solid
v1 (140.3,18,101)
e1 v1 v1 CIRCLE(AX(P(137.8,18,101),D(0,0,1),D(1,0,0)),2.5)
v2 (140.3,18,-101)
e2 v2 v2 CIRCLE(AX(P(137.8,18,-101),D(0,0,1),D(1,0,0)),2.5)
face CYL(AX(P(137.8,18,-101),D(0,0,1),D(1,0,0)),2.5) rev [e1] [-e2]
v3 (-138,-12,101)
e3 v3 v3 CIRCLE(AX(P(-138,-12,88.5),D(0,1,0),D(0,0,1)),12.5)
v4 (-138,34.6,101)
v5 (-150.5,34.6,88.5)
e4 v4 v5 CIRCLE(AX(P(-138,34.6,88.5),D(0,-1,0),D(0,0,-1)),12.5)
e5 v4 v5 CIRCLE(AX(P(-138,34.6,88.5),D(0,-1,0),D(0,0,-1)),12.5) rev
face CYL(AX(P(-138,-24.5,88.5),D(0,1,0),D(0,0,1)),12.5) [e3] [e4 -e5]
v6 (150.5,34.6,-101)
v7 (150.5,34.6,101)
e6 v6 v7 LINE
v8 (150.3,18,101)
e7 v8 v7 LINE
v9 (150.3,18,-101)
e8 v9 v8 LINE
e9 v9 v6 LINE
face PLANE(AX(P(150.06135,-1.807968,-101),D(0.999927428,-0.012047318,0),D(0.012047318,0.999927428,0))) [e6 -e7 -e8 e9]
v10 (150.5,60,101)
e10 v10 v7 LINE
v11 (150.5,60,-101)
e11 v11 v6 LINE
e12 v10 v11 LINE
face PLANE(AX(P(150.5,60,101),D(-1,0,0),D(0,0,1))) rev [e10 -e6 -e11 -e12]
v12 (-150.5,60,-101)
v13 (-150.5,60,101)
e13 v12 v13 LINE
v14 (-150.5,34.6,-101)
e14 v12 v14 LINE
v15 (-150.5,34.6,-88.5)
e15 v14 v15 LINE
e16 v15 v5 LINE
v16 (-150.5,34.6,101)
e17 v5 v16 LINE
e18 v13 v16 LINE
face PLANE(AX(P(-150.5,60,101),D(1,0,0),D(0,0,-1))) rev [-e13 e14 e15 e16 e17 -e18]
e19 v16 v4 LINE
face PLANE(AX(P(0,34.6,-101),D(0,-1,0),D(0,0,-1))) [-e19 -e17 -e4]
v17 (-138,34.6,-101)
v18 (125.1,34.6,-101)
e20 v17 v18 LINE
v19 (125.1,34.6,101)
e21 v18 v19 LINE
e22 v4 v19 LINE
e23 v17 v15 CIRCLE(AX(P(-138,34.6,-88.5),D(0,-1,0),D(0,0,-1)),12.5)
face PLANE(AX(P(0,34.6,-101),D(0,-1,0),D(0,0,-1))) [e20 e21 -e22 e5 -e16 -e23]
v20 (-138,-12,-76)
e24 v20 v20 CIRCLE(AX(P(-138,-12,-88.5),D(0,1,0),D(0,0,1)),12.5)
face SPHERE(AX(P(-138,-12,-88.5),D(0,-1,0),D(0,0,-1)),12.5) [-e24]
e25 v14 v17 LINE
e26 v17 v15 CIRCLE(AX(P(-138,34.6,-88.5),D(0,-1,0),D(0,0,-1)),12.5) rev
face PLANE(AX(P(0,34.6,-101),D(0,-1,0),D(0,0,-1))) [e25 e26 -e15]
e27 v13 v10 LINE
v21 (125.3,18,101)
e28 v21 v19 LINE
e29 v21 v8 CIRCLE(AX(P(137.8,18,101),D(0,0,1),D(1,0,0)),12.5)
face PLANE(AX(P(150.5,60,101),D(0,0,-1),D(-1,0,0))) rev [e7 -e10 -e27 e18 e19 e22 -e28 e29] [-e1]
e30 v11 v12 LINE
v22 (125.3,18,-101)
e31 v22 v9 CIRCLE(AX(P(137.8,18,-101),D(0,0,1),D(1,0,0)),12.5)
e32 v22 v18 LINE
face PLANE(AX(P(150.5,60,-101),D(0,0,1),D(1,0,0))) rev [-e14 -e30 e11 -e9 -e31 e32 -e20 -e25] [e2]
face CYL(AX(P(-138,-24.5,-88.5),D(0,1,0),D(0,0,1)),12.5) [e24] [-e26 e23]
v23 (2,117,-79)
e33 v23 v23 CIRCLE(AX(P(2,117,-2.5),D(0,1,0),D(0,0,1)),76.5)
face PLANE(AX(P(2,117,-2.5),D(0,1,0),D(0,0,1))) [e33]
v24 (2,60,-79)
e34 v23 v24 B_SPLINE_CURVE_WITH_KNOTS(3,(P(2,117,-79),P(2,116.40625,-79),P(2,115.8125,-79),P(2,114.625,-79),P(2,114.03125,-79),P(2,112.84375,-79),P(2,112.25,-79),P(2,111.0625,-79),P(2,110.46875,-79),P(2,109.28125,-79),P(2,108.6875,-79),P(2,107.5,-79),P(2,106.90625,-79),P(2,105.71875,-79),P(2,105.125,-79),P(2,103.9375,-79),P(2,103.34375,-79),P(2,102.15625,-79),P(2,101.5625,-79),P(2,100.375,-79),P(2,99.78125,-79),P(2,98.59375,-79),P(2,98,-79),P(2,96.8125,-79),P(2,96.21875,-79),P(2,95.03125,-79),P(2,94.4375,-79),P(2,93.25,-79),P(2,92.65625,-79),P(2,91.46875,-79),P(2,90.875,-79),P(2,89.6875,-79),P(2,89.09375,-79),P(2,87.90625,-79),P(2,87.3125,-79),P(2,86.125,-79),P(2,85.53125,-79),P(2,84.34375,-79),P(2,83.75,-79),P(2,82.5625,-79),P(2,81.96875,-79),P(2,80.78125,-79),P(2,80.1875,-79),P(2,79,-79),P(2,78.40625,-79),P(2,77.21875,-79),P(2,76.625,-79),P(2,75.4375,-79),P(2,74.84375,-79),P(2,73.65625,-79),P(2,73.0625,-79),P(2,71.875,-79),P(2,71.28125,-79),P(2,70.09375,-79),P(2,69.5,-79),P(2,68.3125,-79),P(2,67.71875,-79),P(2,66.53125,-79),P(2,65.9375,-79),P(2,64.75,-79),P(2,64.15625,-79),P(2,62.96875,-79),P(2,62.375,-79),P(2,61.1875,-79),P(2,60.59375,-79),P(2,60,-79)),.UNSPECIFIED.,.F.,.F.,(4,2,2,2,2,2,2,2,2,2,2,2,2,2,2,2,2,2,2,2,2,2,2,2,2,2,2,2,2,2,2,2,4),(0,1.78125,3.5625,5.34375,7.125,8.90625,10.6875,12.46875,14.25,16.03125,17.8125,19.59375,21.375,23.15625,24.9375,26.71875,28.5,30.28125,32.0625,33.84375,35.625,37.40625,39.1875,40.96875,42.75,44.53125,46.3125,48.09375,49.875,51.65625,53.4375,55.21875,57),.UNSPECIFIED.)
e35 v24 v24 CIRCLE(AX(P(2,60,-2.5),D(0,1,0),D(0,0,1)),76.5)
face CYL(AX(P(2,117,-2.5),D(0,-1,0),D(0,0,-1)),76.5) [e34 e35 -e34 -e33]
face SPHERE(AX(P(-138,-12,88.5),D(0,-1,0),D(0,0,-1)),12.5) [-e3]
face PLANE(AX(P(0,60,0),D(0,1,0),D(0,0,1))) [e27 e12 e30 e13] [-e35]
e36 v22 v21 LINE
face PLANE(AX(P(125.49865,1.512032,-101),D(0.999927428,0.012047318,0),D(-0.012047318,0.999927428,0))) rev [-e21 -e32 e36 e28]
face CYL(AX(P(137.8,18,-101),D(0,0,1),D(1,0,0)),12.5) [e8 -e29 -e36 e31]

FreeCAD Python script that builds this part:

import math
import FreeCAD as App
import Part
import Sketcher
from FreeCAD import Vector


def edges_at(feature, points):
    """Names of the edges that pass closest to the given points."""
    edges = feature.Shape.Edges
    near = lambda p: min(range(len(edges)), key=lambda i: edges[i].distToShape(Part.Vertex(*p))[0])
    return sorted({f"Edge{near(p) + 1}" for p in points})


def add_polygon(sketch, points):
    """Adds a closed chain of lines whose ends are joined by coincident constraints."""
    first, n = sketch.GeometryCount, len(points)
    for a, b in zip(points, points[1:] + points[:1]):
        sketch.addGeometry(Part.LineSegment(App.Vector(*a, 0), App.Vector(*b, 0)), False)
    for i in range(n):
        sketch.addConstraint(Sketcher.Constraint("Coincident", first + i, 2, first + (i + 1) % n, 1))

doc = App.newDocument("Part")
params = doc.addObject("Spreadsheet::Sheet", "Params")
for row, (alias, value) in enumerate([
    ("sketch1_width", "301 mm"),
    ("sketch1_height", "202 mm"),
    ("pad1_length", "60 mm"),
    ("sketch2_radius", "12.5 mm"),
    ("sketch2_width", "301 mm"),
    ("sketch2_width2", "275.6 mm"),
    ("sketch2_height", "34.6 mm"),
    ("sketch3_diameter", "25 mm"),
    ("pad2_length", "59.1 mm"),
    ("fillet_radius", "12.5 mm"),
    ("sketch4_diameter", "5 mm"),
    ("sketch5_diameter", "153 mm"),
    ("pad3_length", "57 mm"),
], start=1):
    params.set(f"A{row}", alias)
    params.set(f"B{row}", "=" + value)
    params.setAlias(f"B{row}", alias)

body = doc.addObject("PartDesign::Body", "Body")

sketch1 = doc.addObject("Sketcher::SketchObject", "Sketch")
body.addObject(sketch1)
sketch1.AttachmentSupport = (doc.XZ_Plane, [""])
sketch1.MapMode = "FlatFace"
add_polygon(sketch1, [(-150, -101), (-150, 101), (150, 101), (150, -101)])
sketch1.addConstraint([
    Sketcher.Constraint("Vertical", 0),
    Sketcher.Constraint("Horizontal", 1),
    Sketcher.Constraint("Vertical", 2),
    Sketcher.Constraint("Horizontal", 3),
    Sketcher.Constraint("Symmetric", 0, 2, 2, 2, -1, 1),
    Sketcher.Constraint("DistanceX", 1, 1, 1, 2, 301.0),
    Sketcher.Constraint("DistanceY", 0, 1, 0, 2, 202.0),
])
sketch1.setExpression("Constraints[9]", "Params.sketch1_width")
sketch1.setExpression("Constraints[10]", "Params.sketch1_height")
pad1 = doc.addObject("PartDesign::Pad", "Pad")
body.addObject(pad1)
pad1.Profile = sketch1
pad1.setExpression("Length", "Params.pad1_length")
pad1.Reversed = True

sketch2 = doc.addObject("Sketcher::SketchObject", "Sketch001")
body.addObject(sketch2)
sketch2.AttachmentSupport = (doc.XY_Plane, [""])
sketch2.MapMode = "FlatFace"
sketch2.AttachmentOffset = App.Placement(Vector(0, 0, 101), App.Rotation())
sketch2.addGeometry([
    Part.LineSegment(Vector(125, 18, 0), Vector(125, 35, 0)),
    Part.LineSegment(Vector(125, 35, 0), Vector(-150, 35, 0)),
    Part.LineSegment(Vector(-150, 35, 0), Vector(-150, 0, 0)),
    Part.LineSegment(Vector(-150, 0, 0), Vector(150, 0, 0)),
    Part.LineSegment(Vector(150, 0, 0), Vector(150, 35, 0)),
    Part.LineSegment(Vector(150, 35, 0), Vector(150, 18, 0)),
    Part.ArcOfCircle(Part.Circle(Vector(138, 18, 0), Vector(0, 0, 1), 12), math.radians(180), math.radians(360)),
], False)
sketch2.addConstraint([
    Sketcher.Constraint("Coincident", 0, 2, 1, 1),
    Sketcher.Constraint("Coincident", 1, 2, 2, 1),
    Sketcher.Constraint("Coincident", 2, 2, 3, 1),
    Sketcher.Constraint("Coincident", 3, 2, 4, 1),
    Sketcher.Constraint("Coincident", 4, 2, 5, 1),
    Sketcher.Constraint("Coincident", 5, 2, 6, 2),
    Sketcher.Constraint("Coincident", 6, 1, 0, 1),
    Sketcher.Constraint("Horizontal", 1),
    Sketcher.Constraint("Vertical", 2),
    Sketcher.Constraint("Horizontal", 3),
    Sketcher.Constraint("Vertical", 4),
    Sketcher.Constraint("Symmetric", 2, 2, 3, 2, -1, 1),
    Sketcher.Constraint("Horizontal", 1, 2, 4, 2),
    Sketcher.Constraint("Horizontal", 6, 3, 5, 2),
    Sketcher.Constraint("Horizontal", 5, 2, 6, 1),
    Sketcher.Constraint("Equal", 0, 5),
    Sketcher.Constraint("Radius", 6, 12.5),
    Sketcher.Constraint("DistanceX", 3, 1, 3, 2, 301.0),
    Sketcher.Constraint("DistanceX", 1, 2, 1, 1, 275.6),
    Sketcher.Constraint("DistanceY", 2, 2, 2, 1, 34.6),
    Sketcher.Constraint("DistanceY", -1, 1, 6, 3, 18.0),
])
sketch2.setExpression("Constraints[16]", "Params.sketch2_radius")
sketch2.setExpression("Constraints[17]", "Params.sketch2_width")
sketch2.setExpression("Constraints[18]", "Params.sketch2_width2")
sketch2.setExpression("Constraints[19]", "Params.sketch2_height")
pocket1 = doc.addObject("PartDesign::Pocket", "Pocket")
body.addObject(pocket1)
pocket1.Profile = sketch2
pocket1.Type = "ThroughAll"

sketch3 = doc.addObject("Sketcher::SketchObject", "Sketch002")
body.addObject(sketch3)
sketch3.AttachmentSupport = (doc.XZ_Plane, [""])
sketch3.MapMode = "FlatFace"
sketch3.AttachmentOffset = App.Placement(Vector(0, 0, -34.6), App.Rotation())
sketch3.addGeometry([
    Part.Circle(Vector(-138, 88, 0), Vector(0, 0, 1), 12),
    Part.Circle(Vector(-138, -88, 0), Vector(0, 0, 1), 12),
], False)
sketch3.addConstraint([
    Sketcher.Constraint("Equal", 0, 1),
    Sketcher.Constraint("Symmetric", 0, 3, 1, 3, -1),
    Sketcher.Constraint("Diameter", 0, 25.0),
    Sketcher.Constraint("DistanceX", 0, 3, -1, 1, 138.0),
    Sketcher.Constraint("DistanceY", 1, 3, 0, 3, 177.0),
])
sketch3.setExpression("Constraints[2]", "Params.sketch3_diameter")
pad2 = doc.addObject("PartDesign::Pad", "Pad001")
body.addObject(pad2)
pad2.Profile = sketch3
pad2.setExpression("Length", "Params.pad2_length")
doc.recompute()

fillet = doc.addObject("PartDesign::Fillet", "Fillet")
body.addObject(fillet)
fillet.Base = (pad2, edges_at(pad2, [(-138, -24.5, 76), (-138, -24.5, -76)]))
fillet.setExpression("Radius", "Params.fillet_radius")

sketch4 = doc.addObject("Sketcher::SketchObject", "Sketch003")
body.addObject(sketch4)
sketch4.AttachmentSupport = (doc.XY_Plane, [""])
sketch4.MapMode = "FlatFace"
sketch4.AttachmentOffset = App.Placement(Vector(0, 0, 101), App.Rotation())
sketch4.addGeometry(Part.Circle(Vector(137.8, 18, 0), Vector(0, 0, 1), 2.5), False)
sketch4.addConstraint([
    Sketcher.Constraint("Diameter", 0, 5.0),
    Sketcher.Constraint("DistanceY", -1, 1, 0, 3, 18.0),
    Sketcher.Constraint("DistanceX", -1, 1, 0, 3, 137.8),
])
sketch4.setExpression("Constraints[0]", "Params.sketch4_diameter")
pocket2 = doc.addObject("PartDesign::Pocket", "Pocket001")
body.addObject(pocket2)
pocket2.Profile = sketch4
pocket2.Type = "ThroughAll"

sketch5 = doc.addObject("Sketcher::SketchObject", "Sketch004")
body.addObject(sketch5)
sketch5.AttachmentSupport = (doc.XZ_Plane, [""])
sketch5.MapMode = "FlatFace"
sketch5.AttachmentOffset = App.Placement(Vector(0, 0, -60), App.Rotation())
sketch5.addGeometry(Part.Circle(Vector(2, -2, 0), Vector(0, 0, 1), 76), False)
sketch5.addConstraint([
    Sketcher.Constraint("Diameter", 0, 153.0),
    Sketcher.Constraint("DistanceX", -1, 1, 0, 3, 2.0),
    Sketcher.Constraint("DistanceY", 0, 3, -1, 1, 2.5),
])
sketch5.setExpression("Constraints[0]", "Params.sketch5_diameter")
pad3 = doc.addObject("PartDesign::Pad", "Pad002")
body.addObject(pad3)
pad3.Profile = sketch5
pad3.setExpression("Length", "Params.pad3_length")
pad3.Reversed = True

doc.recompute()
